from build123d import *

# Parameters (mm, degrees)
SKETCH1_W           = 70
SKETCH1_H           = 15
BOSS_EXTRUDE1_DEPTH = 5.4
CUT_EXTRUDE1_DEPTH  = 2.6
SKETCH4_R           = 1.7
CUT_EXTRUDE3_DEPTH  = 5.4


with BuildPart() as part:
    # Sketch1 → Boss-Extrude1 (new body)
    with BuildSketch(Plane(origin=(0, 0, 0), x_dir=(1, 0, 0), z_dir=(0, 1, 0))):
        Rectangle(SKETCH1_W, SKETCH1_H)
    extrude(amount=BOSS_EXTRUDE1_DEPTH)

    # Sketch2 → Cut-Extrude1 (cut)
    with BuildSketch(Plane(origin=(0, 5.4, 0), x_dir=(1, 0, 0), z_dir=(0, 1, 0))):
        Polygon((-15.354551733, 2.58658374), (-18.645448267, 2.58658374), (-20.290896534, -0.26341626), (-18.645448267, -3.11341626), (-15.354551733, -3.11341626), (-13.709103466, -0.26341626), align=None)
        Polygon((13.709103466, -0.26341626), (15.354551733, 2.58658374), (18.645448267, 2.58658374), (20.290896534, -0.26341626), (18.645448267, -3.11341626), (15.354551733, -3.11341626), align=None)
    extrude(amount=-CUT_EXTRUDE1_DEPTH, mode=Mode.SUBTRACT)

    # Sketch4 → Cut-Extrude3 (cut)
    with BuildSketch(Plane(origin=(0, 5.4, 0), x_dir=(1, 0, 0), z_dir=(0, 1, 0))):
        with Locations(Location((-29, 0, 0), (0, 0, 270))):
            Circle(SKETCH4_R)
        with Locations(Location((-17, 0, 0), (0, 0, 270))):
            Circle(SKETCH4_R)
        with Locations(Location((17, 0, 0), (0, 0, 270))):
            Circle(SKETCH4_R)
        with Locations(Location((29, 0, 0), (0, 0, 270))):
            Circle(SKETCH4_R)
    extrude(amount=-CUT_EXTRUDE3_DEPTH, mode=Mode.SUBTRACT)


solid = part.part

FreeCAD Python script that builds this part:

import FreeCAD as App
import Part
import Sketcher
Q = App.Units.Quantity


def add_polygon(sketch, points):
    """Adds a closed chain of lines whose ends are joined by coincident constraints."""
    first, n = sketch.GeometryCount, len(points)
    for a, b in zip(points, points[1:] + points[:1]):
        sketch.addGeometry(Part.LineSegment(App.Vector(*a, 0), App.Vector(*b, 0)), False)
    for i in range(n):
        sketch.addConstraint(Sketcher.Constraint("Coincident", first + i, 2, first + (i + 1) % n, 1))

doc = App.newDocument("Part")
body = doc.addObject("PartDesign::Body", "Body")

# Sketch on XZ plane
sketch1 = body.newObject("Sketcher::SketchObject", "Sketch")
sketch1.AttachmentSupport = (doc.getObject("XZ_Plane"), [""])
sketch1.MapMode = "FlatFace"
add_polygon(sketch1, [(-35, -8), (-35, 8), (35, 8), (35, -8)])  # lines 0-3
sketch1.addConstraint([
    Sketcher.Constraint("Vertical", 0),
    Sketcher.Constraint("Horizontal", 1),
    Sketcher.Constraint("Vertical", 2),
    Sketcher.Constraint("Horizontal", 3),
    Sketcher.Constraint("Symmetric", 0, 2, 2, 2, -1, 1),
    Sketcher.Constraint("DistanceX", 1, 1, 1, 2, 70.0),
    Sketcher.Constraint("DistanceY", 0, 1, 0, 2, 15.0),
])
pad1 = body.newObject("PartDesign::Pad", "Pad")
pad1.Profile = sketch1
pad1.Length = 5.4
pad1.Reversed = True

# Sketch on XZ plane
sketch2 = body.newObject("Sketcher::SketchObject", "Sketch001")
sketch2.AttachmentSupport = (doc.getObject("XZ_Plane"), [""])
sketch2.MapMode = "FlatFace"
sketch2.AttachmentOffset = App.Placement(App.Vector(0, 0, -5.4), App.Rotation())
add_polygon(sketch2, [(-15.4, -2.6), (-18.6, -2.6), (-20.3, 0.3), (-18.6, 3.1), (-15.4, 3.1), (-13.7, 0.3)])  # lines 0-5
add_polygon(sketch2, [(15.4, -2.6), (13.7, 0.3), (15.4, 3.1), (18.6, 3.1), (20.3, 0.3), (18.6, -2.6)])  # lines 6-11
sketch2.addConstraint([
    Sketcher.Constraint("Horizontal", 0),
    Sketcher.Constraint("Horizontal", 3),
    Sketcher.Constraint("Horizontal", 8),
    Sketcher.Constraint("Horizontal", 11),
    Sketcher.Constraint("Symmetric", 4, 2, 6, 2, -2),
    Sketcher.Constraint("Symmetric", 3, 2, 7, 2, -2),
    Sketcher.Constraint("Symmetric", 1, 2, 9, 2, -2),
    Sketcher.Constraint("Symmetric", 0, 2, 10, 2, -2),
    Sketcher.Constraint("Parallel", 1, 4),
    Sketcher.Constraint("Parallel", 2, 5),
    Sketcher.Constraint("Parallel", 4, 6),
    Sketcher.Constraint("Parallel", 5, 7),
    Sketcher.Constraint("Parallel", 6, 9),
    Sketcher.Constraint("Horizontal", 1, 2, 4, 2),
    Sketcher.Constraint("Vertical", 0, 2, 2, 2),
    Sketcher.Constraint("Angle", 1, Q("120 deg")),
    Sketcher.Constraint("DistanceX", 2, 2, 7, 2, 34.0),
    Sketcher.Constraint("DistanceY", 0, 2, 2, 2, 5.7),
    Sketcher.Constraint("DistanceX", 0, 2, 0, 1, 3.290897),
    Sketcher.Constraint("DistanceY", 0, 2, -1, 1, 2.586584),
])
pocket1 = body.newObject("PartDesign::Pocket", "Pocket")
pocket1.Profile = sketch2
pocket1.Length = 2.6
pocket1.Reversed = True

# Sketch on XZ plane
sketch3 = body.newObject("Sketcher::SketchObject", "Sketch002")
sketch3.AttachmentSupport = (doc.getObject("XZ_Plane"), [""])
sketch3.MapMode = "FlatFace"
sketch3.AttachmentOffset = App.Placement(App.Vector(0, 0, -5.4), App.Rotation())
sketch3.addGeometry([
    Part.Circle(App.Vector(-29, 0, 0), App.Vector(0, 0, 1), 1.7),
    Part.Circle(App.Vector(-17, 0, 0), App.Vector(0, 0, 1), 1.7),
    Part.Circle(App.Vector(17, 0, 0), App.Vector(0, 0, 1), 1.7),
    Part.Circle(App.Vector(29, 0, 0), App.Vector(0, 0, 1), 1.7),
], False)
sketch3.addConstraint([
    Sketcher.Constraint("Equal", 0, 1),
    Sketcher.Constraint("Equal", 1, 2),
    Sketcher.Constraint("Equal", 2, 3),
    Sketcher.Constraint("Symmetric", 1, 3, 2, 3, -1, 1),
    Sketcher.Constraint("Symmetric", 0, 3, 3, 3, -1, 1),
    Sketcher.Constraint("PointOnObject", 0, 3, -1),
    Sketcher.Constraint("PointOnObject", 1, 3, -1),
    Sketcher.Constraint("Diameter", 0, 3.4),
    Sketcher.Constraint("DistanceX", 0, 3, -1, 1, 29.0),
    Sketcher.Constraint("DistanceX", 1, 3, -1, 1, 17.0),
])
pocket2 = body.newObject("PartDesign::Pocket", "Pocket001")
pocket2.Profile = sketch3
pocket2.Length = 5.4
pocket2.Reversed = True

doc.recompute()
